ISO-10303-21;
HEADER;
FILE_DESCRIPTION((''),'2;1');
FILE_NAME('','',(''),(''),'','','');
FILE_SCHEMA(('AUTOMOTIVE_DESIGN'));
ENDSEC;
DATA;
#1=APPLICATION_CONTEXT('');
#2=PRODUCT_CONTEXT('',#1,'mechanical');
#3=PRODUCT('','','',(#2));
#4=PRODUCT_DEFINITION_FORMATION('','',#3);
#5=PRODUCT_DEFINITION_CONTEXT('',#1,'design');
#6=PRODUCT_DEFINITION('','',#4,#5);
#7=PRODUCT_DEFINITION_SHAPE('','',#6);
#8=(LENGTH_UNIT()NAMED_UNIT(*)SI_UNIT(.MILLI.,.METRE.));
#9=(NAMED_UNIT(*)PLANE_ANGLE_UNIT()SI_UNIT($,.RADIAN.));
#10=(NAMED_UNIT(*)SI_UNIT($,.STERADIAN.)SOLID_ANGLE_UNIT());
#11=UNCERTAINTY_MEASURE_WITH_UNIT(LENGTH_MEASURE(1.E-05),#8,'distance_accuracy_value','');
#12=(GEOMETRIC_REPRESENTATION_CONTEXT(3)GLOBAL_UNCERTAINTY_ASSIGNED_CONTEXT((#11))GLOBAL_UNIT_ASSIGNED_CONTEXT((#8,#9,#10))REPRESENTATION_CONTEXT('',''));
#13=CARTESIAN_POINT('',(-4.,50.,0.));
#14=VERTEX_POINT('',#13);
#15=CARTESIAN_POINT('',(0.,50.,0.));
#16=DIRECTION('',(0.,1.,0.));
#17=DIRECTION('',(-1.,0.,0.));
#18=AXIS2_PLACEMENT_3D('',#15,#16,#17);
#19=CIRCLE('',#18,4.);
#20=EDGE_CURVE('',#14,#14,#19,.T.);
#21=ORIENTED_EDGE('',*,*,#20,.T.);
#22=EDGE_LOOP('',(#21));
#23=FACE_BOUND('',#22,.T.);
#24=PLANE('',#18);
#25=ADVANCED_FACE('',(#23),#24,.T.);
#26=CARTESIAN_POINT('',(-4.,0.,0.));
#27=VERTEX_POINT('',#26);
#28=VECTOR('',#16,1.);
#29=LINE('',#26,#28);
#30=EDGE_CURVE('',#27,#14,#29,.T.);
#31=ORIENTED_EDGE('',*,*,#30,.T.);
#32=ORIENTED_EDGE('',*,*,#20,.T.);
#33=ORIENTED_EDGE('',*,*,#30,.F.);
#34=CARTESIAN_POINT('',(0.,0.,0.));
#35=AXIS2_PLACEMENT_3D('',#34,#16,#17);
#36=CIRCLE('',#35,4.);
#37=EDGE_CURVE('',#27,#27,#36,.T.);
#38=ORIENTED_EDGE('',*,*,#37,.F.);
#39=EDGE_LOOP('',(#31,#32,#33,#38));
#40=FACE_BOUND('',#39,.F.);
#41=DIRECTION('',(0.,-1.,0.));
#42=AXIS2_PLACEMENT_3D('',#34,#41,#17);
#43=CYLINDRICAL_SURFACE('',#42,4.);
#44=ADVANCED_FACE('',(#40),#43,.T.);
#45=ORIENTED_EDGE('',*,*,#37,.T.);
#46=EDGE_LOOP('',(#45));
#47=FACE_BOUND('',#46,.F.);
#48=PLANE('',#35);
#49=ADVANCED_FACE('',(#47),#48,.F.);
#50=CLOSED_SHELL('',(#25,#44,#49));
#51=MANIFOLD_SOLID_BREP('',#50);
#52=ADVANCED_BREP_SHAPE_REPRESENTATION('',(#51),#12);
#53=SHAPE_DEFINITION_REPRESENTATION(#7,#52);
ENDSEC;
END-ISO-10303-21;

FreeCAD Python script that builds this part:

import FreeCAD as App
import Part
import Sketcher
from FreeCAD import Vector
Q = App.Units.Quantity

doc = App.newDocument("Part")
body = doc.addObject("PartDesign::Body", "Body")

sketch1 = body.newObject("Sketcher::SketchObject", "Sketch")
sketch1.AttachmentSupport = (doc.getObject("XZ_Plane"), [""])
sketch1.MapMode = "FlatFace"
sketch1.addGeometry(Part.Circle(Vector(0, 0, 0), Vector(0, 0, 1), 4), False)
sketch1.addConstraint([
    Sketcher.Constraint("Coincident", 0, 3, -1, 1),
    Sketcher.Constraint("Diameter", 0, Q("8 mm")),
])
pad1 = body.newObject("PartDesign::Pad", "Pad")
pad1.Profile = sketch1
pad1.Length = 50
pad1.Reversed = True

doc.recompute()
